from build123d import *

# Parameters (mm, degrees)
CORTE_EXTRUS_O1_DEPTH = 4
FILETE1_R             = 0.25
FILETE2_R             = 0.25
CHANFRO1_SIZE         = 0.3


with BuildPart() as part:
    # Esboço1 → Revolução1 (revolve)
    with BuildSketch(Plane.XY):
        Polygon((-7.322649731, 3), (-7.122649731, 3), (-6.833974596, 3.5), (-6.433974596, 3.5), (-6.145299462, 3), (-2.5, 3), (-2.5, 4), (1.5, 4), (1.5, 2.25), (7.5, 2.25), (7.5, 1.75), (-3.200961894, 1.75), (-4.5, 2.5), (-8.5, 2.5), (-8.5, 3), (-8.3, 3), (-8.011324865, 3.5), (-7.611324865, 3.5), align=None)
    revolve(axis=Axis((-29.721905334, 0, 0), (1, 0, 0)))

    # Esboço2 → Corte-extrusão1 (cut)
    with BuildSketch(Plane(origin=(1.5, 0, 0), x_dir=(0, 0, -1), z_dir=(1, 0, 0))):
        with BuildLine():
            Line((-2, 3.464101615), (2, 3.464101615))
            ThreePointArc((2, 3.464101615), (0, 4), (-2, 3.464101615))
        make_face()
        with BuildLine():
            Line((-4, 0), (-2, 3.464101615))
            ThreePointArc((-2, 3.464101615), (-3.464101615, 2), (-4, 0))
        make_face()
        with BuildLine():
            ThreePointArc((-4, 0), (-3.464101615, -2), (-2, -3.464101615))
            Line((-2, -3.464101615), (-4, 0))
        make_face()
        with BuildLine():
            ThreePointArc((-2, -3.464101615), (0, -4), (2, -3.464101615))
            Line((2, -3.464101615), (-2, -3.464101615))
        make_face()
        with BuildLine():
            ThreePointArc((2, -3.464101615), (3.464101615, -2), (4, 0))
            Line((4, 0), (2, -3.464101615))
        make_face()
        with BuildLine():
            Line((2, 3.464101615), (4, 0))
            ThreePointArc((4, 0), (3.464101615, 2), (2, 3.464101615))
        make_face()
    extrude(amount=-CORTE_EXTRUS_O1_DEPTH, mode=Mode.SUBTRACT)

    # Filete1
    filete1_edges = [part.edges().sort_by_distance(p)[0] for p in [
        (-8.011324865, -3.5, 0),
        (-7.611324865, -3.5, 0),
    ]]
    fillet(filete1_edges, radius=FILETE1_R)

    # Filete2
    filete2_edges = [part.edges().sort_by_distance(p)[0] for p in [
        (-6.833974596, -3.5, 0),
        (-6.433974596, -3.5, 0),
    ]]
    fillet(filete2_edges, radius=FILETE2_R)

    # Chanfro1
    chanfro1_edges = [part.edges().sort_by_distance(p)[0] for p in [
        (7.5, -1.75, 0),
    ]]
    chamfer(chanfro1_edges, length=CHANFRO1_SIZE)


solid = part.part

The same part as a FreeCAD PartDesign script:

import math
import FreeCAD as App
import Part
import Sketcher
from FreeCAD import Vector
Q = App.Units.Quantity


def edges_at(feature, points):
    """Names of the edges that pass closest to the given points."""
    edges = feature.Shape.Edges
    near = lambda p: min(range(len(edges)), key=lambda i: edges[i].distToShape(Part.Vertex(*p))[0])
    return sorted({f"Edge{near(p) + 1}" for p in points})

doc = App.newDocument("Part")
body = doc.addObject("PartDesign::Body", "Body")

# Sketch on XY plane
sketch1 = doc.addObject("Sketcher::SketchObject", "Sketch")
body.addObject(sketch1)
sketch1.AttachmentSupport = (doc.XY_Plane, [""])
sketch1.MapMode = "FlatFace"
sketch1.addGeometry(Part.LineSegment(Vector(-7.12, 3, 0), Vector(-7.32, 3, 0)), False)
sketch1.addGeometry(Part.LineSegment(Vector(-7.32, 3, 0), Vector(-7.61, 3.5, 0)), False)
sketch1.addGeometry(Part.LineSegment(Vector(-7.61, 3.5, 0), Vector(-8.01, 3.5, 0)), False)
sketch1.addGeometry(Part.LineSegment(Vector(-8.01, 3.5, 0), Vector(-8.3, 3, 0)), False)
sketch1.addGeometry(Part.LineSegment(Vector(-8.3, 3, 0), Vector(-8.5, 3, 0)), False)
sketch1.addGeometry(Part.LineSegment(Vector(-8.5, 3, 0), Vector(-8.5, 2.5, 0)), False)
sketch1.addGeometry(Part.LineSegment(Vector(-8.5, 2.5, 0), Vector(-4.5, 2.5, 0)), False)
sketch1.addGeometry(Part.LineSegment(Vector(-4.5, 2.5, 0), Vector(-3.2, 1.75, 0)), False)
sketch1.addGeometry(Part.LineSegment(Vector(-3.2, 1.75, 0), Vector(7.5, 1.75, 0)), False)
sketch1.addGeometry(Part.LineSegment(Vector(7.5, 1.75, 0), Vector(7.5, 2.25, 0)), False)
sketch1.addGeometry(Part.LineSegment(Vector(7.5, 2.25, 0), Vector(1.5, 2.25, 0)), False)
sketch1.addGeometry(Part.LineSegment(Vector(1.5, 2.25, 0), Vector(1.5, 4, 0)), False)
sketch1.addGeometry(Part.LineSegment(Vector(1.5, 4, 0), Vector(-2.5, 4, 0)), False)
sketch1.addGeometry(Part.LineSegment(Vector(-2.5, 4, 0), Vector(-2.5, 3, 0)), False)
sketch1.addGeometry(Part.LineSegment(Vector(-2.5, 3, 0), Vector(-6.15, 3, 0)), False)
sketch1.addGeometry(Part.LineSegment(Vector(-6.15, 3, 0), Vector(-6.43, 3.5, 0)), False)
sketch1.addGeometry(Part.LineSegment(Vector(-6.43, 3.5, 0), Vector(-6.83, 3.5, 0)), False)
sketch1.addGeometry(Part.LineSegment(Vector(-6.83, 3.5, 0), Vector(-7.12, 3, 0)), False)
sketch1.addConstraint(Sketcher.Constraint("Coincident", 0, 2, 1, 1))
sketch1.addConstraint(Sketcher.Constraint("Coincident", 1, 2, 2, 1))
sketch1.addConstraint(Sketcher.Constraint("Coincident", 2, 2, 3, 1))
sketch1.addConstraint(Sketcher.Constraint("Coincident", 3, 2, 4, 1))
sketch1.addConstraint(Sketcher.Constraint("Coincident", 4, 2, 5, 1))
sketch1.addConstraint(Sketcher.Constraint("Coincident", 5, 2, 6, 1))
sketch1.addConstraint(Sketcher.Constraint("Coincident", 6, 2, 7, 1))
sketch1.addConstraint(Sketcher.Constraint("Coincident", 7, 2, 8, 1))
sketch1.addConstraint(Sketcher.Constraint("Coincident", 8, 2, 9, 1))
sketch1.addConstraint(Sketcher.Constraint("Coincident", 9, 2, 10, 1))
sketch1.addConstraint(Sketcher.Constraint("Coincident", 10, 2, 11, 1))
sketch1.addConstraint(Sketcher.Constraint("Coincident", 11, 2, 12, 1))
sketch1.addConstraint(Sketcher.Constraint("Coincident", 12, 2, 13, 1))
sketch1.addConstraint(Sketcher.Constraint("Coincident", 13, 2, 14, 1))
sketch1.addConstraint(Sketcher.Constraint("Coincident", 14, 2, 15, 1))
sketch1.addConstraint(Sketcher.Constraint("Coincident", 15, 2, 16, 1))
sketch1.addConstraint(Sketcher.Constraint("Coincident", 16, 2, 17, 1))
sketch1.addConstraint(Sketcher.Constraint("Coincident", 17, 2, 0, 1))
sketch1.addConstraint(Sketcher.Constraint("Horizontal", 0))
sketch1.addConstraint(Sketcher.Constraint("Horizontal", 2))
sketch1.addConstraint(Sketcher.Constraint("Horizontal", 4))
sketch1.addConstraint(Sketcher.Constraint("Vertical", 5))
sketch1.addConstraint(Sketcher.Constraint("Horizontal", 6))
sketch1.addConstraint(Sketcher.Constraint("Horizontal", 8))
sketch1.addConstraint(Sketcher.Constraint("Vertical", 9))
sketch1.addConstraint(Sketcher.Constraint("Horizontal", 10))
sketch1.addConstraint(Sketcher.Constraint("Vertical", 11))
sketch1.addConstraint(Sketcher.Constraint("Horizontal", 12))
sketch1.addConstraint(Sketcher.Constraint("Vertical", 13))
sketch1.addConstraint(Sketcher.Constraint("Horizontal", 14))
sketch1.addConstraint(Sketcher.Constraint("Horizontal", 16))
sketch1.addConstraint(Sketcher.Constraint("Perpendicular", 3, 7))
sketch1.addConstraint(Sketcher.Constraint("Parallel", 1, 15))
sketch1.addConstraint(Sketcher.Constraint("Perpendicular", 7, 17))
sketch1.addConstraint(Sketcher.Constraint("Horizontal", 0, 2, 3, 2))
sketch1.addConstraint(Sketcher.Constraint("Horizontal", 4, 2, 13, 2))
sketch1.addConstraint(Sketcher.Constraint("Horizontal", 2, 2, 15, 2))
sketch1.addConstraint(Sketcher.Constraint("Equal", 0, 4))
sketch1.addConstraint(Sketcher.Constraint("Equal", 6, 12))
sketch1.addConstraint(Sketcher.Constraint("Equal", 2, 16))
sketch1.addConstraint(Sketcher.Constraint("Equal", 5, 9))
sketch1.addConstraint(Sketcher.Constraint("Equal", 1, 3))
sketch1.addConstraint(Sketcher.Constraint("DistanceX", 6, 1, 6, 2, Q("4 mm")))
sketch1.addConstraint(Sketcher.Constraint("DistanceX", 10, 2, 10, 1, Q("6 mm")))
sketch1.addConstraint(Sketcher.Constraint("DistanceY", 13, 2, 13, 1, Q("1 mm")))
sketch1.addConstraint(Sketcher.Constraint("Angle", 1, Q("120 deg")))
sketch1.addConstraint(Sketcher.Constraint("DistanceX", 0, 2, 0, 1, Q("0.2 mm")))
sketch1.addConstraint(Sketcher.Constraint("DistanceX", 2, 2, 2, 1, Q("0.4 mm")))
sketch1.addConstraint(Sketcher.Constraint("DistanceY", 5, 2, 5, 1, Q("0.5 mm")))
sketch1.addConstraint(Sketcher.Constraint("DistanceY", -1, 1, 0, 2, Q("3 mm")))
sketch1.addConstraint(Sketcher.Constraint("DistanceY", 5, 2, 2, 2, Q("1 mm")))
sketch1.addConstraint(Sketcher.Constraint("DistanceX", 6, 2, 8, 2, Q("12 mm")))
sketch1.addConstraint(Sketcher.Constraint("Distance", 7, Q("1.5 mm")))
sketch1.addConstraint(Sketcher.Constraint("DistanceX", 3, 2, -1, 1, Q("8.3 mm")))
revolution = doc.addObject("PartDesign::Revolution", "Revolution")
body.addObject(revolution)
revolution.Profile = sketch1
revolution.ReferenceAxis = (sketch1, ["H_Axis"])
revolution.Angle = 360

# Sketch on YZ plane
sketch2 = doc.addObject("Sketcher::SketchObject", "Sketch001")
body.addObject(sketch2)
sketch2.AttachmentSupport = (doc.YZ_Plane, [""])
sketch2.MapMode = "FlatFace"
sketch2.AttachmentOffset = App.Placement(Vector(0, 0, 1.5), App.Rotation())
sketch2.addGeometry(Part.LineSegment(Vector(3.5, 2, 0), Vector(3.5, -2, 0)), False)
sketch2.addGeometry(Part.ArcOfCircle(Part.Circle(Vector(0, 0, 0), Vector(0, 0, 1), 4), math.radians(-30), math.radians(30)), False)
sketch2.addGeometry(Part.LineSegment(Vector(0, 4, 0), Vector(3.5, 2, 0)), False)
sketch2.addGeometry(Part.ArcOfCircle(Part.Circle(Vector(0, 0, 0), Vector(0, 0, 1), 4), math.radians(30), math.radians(90)), False)
sketch2.addGeometry(Part.ArcOfCircle(Part.Circle(Vector(0, 0, 0), Vector(0, 0, 1), 4), math.radians(90), math.radians(150)), False)
sketch2.addGeometry(Part.LineSegment(Vector(-3.5, 2, 0), Vector(0, 4, 0)), False)
sketch2.addGeometry(Part.ArcOfCircle(Part.Circle(Vector(0, 0, 0), Vector(0, 0, 1), 4), math.radians(150), math.radians(210)), False)
sketch2.addGeometry(Part.LineSegment(Vector(-3.5, -2, 0), Vector(-3.5, 2, 0)), False)
sketch2.addGeometry(Part.ArcOfCircle(Part.Circle(Vector(0, 0, 0), Vector(0, 0, 1), 4), math.radians(-150), math.radians(-90)), False)
sketch2.addGeometry(Part.LineSegment(Vector(0, -4, 0), Vector(-3.5, -2, 0)), False)
sketch2.addGeometry(Part.LineSegment(Vector(3.5, -2, 0), Vector(0, -4, 0)), False)
sketch2.addGeometry(Part.ArcOfCircle(Part.Circle(Vector(0, 0, 0), Vector(0, 0, 1), 4), math.radians(-90), math.radians(-30)), False)
sketch2.addConstraint(Sketcher.Constraint("Coincident", 0, 1, 1, 2))
sketch2.addConstraint(Sketcher.Constraint("Coincident", 1, 1, 0, 2))
sketch2.addConstraint(Sketcher.Constraint("Coincident", 2, 1, 3, 2))
sketch2.addConstraint(Sketcher.Constraint("Coincident", 3, 1, 2, 2))
sketch2.addConstraint(Sketcher.Constraint("Coincident", 4, 1, 5, 2))
sketch2.addConstraint(Sketcher.Constraint("Coincident", 5, 1, 4, 2))
sketch2.addConstraint(Sketcher.Constraint("Coincident", 6, 1, 7, 2))
sketch2.addConstraint(Sketcher.Constraint("Coincident", 7, 1, 6, 2))
sketch2.addConstraint(Sketcher.Constraint("Coincident", 8, 1, 9, 2))
sketch2.addConstraint(Sketcher.Constraint("Coincident", 9, 1, 8, 2))
sketch2.addConstraint(Sketcher.Constraint("Coincident", 10, 1, 11, 2))
sketch2.addConstraint(Sketcher.Constraint("Coincident", 11, 1, 10, 2))
sketch2.addConstraint(Sketcher.Constraint("Vertical", 0))
sketch2.addConstraint(Sketcher.Constraint("Vertical", 7))
sketch2.addConstraint(Sketcher.Constraint("Coincident", 1, 3, -1, 1))
sketch2.addConstraint(Sketcher.Constraint("Coincident", 3, 3, -1, 1))
sketch2.addConstraint(Sketcher.Constraint("Coincident", 4, 3, -1, 1))
sketch2.addConstraint(Sketcher.Constraint("Coincident", 6, 3, -1, 1))
sketch2.addConstraint(Sketcher.Constraint("Coincident", 8, 3, -1, 1))
sketch2.addConstraint(Sketcher.Constraint("Coincident", 11, 3, -1, 1))
sketch2.addConstraint(Sketcher.Constraint("Coincident", 3, 1, 0, 1))
sketch2.addConstraint(Sketcher.Constraint("Coincident", 4, 1, 2, 1))
sketch2.addConstraint(Sketcher.Constraint("Coincident", 6, 1, 5, 1))
sketch2.addConstraint(Sketcher.Constraint("Coincident", 8, 1, 7, 1))
sketch2.addConstraint(Sketcher.Constraint("Coincident", 10, 1, 1, 1))
sketch2.addConstraint(Sketcher.Constraint("PointOnObject", 2, 1, -2))
sketch2.addConstraint(Sketcher.Constraint("PointOnObject", 9, 1, -2))
sketch2.addConstraint(Sketcher.Constraint("PointOnObject", 11, 1, -2))
sketch2.addConstraint(Sketcher.Constraint("Parallel", 2, 9))
sketch2.addConstraint(Sketcher.Constraint("Radius", 1, Q("4 mm")))
sketch2.addConstraint(Sketcher.Constraint("DistanceY", 0, 2, 0, 1, Q("4 mm")))
pocket1 = doc.addObject("PartDesign::Pocket", "Pocket")
body.addObject(pocket1)
pocket1.Profile = sketch2
pocket1.Length = 4
doc.recompute()

fillet = doc.addObject("PartDesign::Fillet", "Fillet")
body.addObject(fillet)
fillet.Base = (pocket1, edges_at(pocket1, [(-8.011, -3.5, 0), (-7.611, -3.5, 0)]))
fillet.Radius = 0.25
doc.recompute()

fillet2 = doc.addObject("PartDesign::Fillet", "Fillet001")
body.addObject(fillet2)
fillet2.Base = (fillet, edges_at(fillet, [(-6.834, -3.5, 0), (-6.434, -3.5, 0)]))
fillet2.Radius = 0.25
doc.recompute()

chamfer = doc.addObject("PartDesign::Chamfer", "Chamfer")
body.addObject(chamfer)
chamfer.Base = (fillet2, edges_at(fillet2, [(7.5, -1.75, 0)]))
chamfer.Size = 0.3

doc.recompute()
